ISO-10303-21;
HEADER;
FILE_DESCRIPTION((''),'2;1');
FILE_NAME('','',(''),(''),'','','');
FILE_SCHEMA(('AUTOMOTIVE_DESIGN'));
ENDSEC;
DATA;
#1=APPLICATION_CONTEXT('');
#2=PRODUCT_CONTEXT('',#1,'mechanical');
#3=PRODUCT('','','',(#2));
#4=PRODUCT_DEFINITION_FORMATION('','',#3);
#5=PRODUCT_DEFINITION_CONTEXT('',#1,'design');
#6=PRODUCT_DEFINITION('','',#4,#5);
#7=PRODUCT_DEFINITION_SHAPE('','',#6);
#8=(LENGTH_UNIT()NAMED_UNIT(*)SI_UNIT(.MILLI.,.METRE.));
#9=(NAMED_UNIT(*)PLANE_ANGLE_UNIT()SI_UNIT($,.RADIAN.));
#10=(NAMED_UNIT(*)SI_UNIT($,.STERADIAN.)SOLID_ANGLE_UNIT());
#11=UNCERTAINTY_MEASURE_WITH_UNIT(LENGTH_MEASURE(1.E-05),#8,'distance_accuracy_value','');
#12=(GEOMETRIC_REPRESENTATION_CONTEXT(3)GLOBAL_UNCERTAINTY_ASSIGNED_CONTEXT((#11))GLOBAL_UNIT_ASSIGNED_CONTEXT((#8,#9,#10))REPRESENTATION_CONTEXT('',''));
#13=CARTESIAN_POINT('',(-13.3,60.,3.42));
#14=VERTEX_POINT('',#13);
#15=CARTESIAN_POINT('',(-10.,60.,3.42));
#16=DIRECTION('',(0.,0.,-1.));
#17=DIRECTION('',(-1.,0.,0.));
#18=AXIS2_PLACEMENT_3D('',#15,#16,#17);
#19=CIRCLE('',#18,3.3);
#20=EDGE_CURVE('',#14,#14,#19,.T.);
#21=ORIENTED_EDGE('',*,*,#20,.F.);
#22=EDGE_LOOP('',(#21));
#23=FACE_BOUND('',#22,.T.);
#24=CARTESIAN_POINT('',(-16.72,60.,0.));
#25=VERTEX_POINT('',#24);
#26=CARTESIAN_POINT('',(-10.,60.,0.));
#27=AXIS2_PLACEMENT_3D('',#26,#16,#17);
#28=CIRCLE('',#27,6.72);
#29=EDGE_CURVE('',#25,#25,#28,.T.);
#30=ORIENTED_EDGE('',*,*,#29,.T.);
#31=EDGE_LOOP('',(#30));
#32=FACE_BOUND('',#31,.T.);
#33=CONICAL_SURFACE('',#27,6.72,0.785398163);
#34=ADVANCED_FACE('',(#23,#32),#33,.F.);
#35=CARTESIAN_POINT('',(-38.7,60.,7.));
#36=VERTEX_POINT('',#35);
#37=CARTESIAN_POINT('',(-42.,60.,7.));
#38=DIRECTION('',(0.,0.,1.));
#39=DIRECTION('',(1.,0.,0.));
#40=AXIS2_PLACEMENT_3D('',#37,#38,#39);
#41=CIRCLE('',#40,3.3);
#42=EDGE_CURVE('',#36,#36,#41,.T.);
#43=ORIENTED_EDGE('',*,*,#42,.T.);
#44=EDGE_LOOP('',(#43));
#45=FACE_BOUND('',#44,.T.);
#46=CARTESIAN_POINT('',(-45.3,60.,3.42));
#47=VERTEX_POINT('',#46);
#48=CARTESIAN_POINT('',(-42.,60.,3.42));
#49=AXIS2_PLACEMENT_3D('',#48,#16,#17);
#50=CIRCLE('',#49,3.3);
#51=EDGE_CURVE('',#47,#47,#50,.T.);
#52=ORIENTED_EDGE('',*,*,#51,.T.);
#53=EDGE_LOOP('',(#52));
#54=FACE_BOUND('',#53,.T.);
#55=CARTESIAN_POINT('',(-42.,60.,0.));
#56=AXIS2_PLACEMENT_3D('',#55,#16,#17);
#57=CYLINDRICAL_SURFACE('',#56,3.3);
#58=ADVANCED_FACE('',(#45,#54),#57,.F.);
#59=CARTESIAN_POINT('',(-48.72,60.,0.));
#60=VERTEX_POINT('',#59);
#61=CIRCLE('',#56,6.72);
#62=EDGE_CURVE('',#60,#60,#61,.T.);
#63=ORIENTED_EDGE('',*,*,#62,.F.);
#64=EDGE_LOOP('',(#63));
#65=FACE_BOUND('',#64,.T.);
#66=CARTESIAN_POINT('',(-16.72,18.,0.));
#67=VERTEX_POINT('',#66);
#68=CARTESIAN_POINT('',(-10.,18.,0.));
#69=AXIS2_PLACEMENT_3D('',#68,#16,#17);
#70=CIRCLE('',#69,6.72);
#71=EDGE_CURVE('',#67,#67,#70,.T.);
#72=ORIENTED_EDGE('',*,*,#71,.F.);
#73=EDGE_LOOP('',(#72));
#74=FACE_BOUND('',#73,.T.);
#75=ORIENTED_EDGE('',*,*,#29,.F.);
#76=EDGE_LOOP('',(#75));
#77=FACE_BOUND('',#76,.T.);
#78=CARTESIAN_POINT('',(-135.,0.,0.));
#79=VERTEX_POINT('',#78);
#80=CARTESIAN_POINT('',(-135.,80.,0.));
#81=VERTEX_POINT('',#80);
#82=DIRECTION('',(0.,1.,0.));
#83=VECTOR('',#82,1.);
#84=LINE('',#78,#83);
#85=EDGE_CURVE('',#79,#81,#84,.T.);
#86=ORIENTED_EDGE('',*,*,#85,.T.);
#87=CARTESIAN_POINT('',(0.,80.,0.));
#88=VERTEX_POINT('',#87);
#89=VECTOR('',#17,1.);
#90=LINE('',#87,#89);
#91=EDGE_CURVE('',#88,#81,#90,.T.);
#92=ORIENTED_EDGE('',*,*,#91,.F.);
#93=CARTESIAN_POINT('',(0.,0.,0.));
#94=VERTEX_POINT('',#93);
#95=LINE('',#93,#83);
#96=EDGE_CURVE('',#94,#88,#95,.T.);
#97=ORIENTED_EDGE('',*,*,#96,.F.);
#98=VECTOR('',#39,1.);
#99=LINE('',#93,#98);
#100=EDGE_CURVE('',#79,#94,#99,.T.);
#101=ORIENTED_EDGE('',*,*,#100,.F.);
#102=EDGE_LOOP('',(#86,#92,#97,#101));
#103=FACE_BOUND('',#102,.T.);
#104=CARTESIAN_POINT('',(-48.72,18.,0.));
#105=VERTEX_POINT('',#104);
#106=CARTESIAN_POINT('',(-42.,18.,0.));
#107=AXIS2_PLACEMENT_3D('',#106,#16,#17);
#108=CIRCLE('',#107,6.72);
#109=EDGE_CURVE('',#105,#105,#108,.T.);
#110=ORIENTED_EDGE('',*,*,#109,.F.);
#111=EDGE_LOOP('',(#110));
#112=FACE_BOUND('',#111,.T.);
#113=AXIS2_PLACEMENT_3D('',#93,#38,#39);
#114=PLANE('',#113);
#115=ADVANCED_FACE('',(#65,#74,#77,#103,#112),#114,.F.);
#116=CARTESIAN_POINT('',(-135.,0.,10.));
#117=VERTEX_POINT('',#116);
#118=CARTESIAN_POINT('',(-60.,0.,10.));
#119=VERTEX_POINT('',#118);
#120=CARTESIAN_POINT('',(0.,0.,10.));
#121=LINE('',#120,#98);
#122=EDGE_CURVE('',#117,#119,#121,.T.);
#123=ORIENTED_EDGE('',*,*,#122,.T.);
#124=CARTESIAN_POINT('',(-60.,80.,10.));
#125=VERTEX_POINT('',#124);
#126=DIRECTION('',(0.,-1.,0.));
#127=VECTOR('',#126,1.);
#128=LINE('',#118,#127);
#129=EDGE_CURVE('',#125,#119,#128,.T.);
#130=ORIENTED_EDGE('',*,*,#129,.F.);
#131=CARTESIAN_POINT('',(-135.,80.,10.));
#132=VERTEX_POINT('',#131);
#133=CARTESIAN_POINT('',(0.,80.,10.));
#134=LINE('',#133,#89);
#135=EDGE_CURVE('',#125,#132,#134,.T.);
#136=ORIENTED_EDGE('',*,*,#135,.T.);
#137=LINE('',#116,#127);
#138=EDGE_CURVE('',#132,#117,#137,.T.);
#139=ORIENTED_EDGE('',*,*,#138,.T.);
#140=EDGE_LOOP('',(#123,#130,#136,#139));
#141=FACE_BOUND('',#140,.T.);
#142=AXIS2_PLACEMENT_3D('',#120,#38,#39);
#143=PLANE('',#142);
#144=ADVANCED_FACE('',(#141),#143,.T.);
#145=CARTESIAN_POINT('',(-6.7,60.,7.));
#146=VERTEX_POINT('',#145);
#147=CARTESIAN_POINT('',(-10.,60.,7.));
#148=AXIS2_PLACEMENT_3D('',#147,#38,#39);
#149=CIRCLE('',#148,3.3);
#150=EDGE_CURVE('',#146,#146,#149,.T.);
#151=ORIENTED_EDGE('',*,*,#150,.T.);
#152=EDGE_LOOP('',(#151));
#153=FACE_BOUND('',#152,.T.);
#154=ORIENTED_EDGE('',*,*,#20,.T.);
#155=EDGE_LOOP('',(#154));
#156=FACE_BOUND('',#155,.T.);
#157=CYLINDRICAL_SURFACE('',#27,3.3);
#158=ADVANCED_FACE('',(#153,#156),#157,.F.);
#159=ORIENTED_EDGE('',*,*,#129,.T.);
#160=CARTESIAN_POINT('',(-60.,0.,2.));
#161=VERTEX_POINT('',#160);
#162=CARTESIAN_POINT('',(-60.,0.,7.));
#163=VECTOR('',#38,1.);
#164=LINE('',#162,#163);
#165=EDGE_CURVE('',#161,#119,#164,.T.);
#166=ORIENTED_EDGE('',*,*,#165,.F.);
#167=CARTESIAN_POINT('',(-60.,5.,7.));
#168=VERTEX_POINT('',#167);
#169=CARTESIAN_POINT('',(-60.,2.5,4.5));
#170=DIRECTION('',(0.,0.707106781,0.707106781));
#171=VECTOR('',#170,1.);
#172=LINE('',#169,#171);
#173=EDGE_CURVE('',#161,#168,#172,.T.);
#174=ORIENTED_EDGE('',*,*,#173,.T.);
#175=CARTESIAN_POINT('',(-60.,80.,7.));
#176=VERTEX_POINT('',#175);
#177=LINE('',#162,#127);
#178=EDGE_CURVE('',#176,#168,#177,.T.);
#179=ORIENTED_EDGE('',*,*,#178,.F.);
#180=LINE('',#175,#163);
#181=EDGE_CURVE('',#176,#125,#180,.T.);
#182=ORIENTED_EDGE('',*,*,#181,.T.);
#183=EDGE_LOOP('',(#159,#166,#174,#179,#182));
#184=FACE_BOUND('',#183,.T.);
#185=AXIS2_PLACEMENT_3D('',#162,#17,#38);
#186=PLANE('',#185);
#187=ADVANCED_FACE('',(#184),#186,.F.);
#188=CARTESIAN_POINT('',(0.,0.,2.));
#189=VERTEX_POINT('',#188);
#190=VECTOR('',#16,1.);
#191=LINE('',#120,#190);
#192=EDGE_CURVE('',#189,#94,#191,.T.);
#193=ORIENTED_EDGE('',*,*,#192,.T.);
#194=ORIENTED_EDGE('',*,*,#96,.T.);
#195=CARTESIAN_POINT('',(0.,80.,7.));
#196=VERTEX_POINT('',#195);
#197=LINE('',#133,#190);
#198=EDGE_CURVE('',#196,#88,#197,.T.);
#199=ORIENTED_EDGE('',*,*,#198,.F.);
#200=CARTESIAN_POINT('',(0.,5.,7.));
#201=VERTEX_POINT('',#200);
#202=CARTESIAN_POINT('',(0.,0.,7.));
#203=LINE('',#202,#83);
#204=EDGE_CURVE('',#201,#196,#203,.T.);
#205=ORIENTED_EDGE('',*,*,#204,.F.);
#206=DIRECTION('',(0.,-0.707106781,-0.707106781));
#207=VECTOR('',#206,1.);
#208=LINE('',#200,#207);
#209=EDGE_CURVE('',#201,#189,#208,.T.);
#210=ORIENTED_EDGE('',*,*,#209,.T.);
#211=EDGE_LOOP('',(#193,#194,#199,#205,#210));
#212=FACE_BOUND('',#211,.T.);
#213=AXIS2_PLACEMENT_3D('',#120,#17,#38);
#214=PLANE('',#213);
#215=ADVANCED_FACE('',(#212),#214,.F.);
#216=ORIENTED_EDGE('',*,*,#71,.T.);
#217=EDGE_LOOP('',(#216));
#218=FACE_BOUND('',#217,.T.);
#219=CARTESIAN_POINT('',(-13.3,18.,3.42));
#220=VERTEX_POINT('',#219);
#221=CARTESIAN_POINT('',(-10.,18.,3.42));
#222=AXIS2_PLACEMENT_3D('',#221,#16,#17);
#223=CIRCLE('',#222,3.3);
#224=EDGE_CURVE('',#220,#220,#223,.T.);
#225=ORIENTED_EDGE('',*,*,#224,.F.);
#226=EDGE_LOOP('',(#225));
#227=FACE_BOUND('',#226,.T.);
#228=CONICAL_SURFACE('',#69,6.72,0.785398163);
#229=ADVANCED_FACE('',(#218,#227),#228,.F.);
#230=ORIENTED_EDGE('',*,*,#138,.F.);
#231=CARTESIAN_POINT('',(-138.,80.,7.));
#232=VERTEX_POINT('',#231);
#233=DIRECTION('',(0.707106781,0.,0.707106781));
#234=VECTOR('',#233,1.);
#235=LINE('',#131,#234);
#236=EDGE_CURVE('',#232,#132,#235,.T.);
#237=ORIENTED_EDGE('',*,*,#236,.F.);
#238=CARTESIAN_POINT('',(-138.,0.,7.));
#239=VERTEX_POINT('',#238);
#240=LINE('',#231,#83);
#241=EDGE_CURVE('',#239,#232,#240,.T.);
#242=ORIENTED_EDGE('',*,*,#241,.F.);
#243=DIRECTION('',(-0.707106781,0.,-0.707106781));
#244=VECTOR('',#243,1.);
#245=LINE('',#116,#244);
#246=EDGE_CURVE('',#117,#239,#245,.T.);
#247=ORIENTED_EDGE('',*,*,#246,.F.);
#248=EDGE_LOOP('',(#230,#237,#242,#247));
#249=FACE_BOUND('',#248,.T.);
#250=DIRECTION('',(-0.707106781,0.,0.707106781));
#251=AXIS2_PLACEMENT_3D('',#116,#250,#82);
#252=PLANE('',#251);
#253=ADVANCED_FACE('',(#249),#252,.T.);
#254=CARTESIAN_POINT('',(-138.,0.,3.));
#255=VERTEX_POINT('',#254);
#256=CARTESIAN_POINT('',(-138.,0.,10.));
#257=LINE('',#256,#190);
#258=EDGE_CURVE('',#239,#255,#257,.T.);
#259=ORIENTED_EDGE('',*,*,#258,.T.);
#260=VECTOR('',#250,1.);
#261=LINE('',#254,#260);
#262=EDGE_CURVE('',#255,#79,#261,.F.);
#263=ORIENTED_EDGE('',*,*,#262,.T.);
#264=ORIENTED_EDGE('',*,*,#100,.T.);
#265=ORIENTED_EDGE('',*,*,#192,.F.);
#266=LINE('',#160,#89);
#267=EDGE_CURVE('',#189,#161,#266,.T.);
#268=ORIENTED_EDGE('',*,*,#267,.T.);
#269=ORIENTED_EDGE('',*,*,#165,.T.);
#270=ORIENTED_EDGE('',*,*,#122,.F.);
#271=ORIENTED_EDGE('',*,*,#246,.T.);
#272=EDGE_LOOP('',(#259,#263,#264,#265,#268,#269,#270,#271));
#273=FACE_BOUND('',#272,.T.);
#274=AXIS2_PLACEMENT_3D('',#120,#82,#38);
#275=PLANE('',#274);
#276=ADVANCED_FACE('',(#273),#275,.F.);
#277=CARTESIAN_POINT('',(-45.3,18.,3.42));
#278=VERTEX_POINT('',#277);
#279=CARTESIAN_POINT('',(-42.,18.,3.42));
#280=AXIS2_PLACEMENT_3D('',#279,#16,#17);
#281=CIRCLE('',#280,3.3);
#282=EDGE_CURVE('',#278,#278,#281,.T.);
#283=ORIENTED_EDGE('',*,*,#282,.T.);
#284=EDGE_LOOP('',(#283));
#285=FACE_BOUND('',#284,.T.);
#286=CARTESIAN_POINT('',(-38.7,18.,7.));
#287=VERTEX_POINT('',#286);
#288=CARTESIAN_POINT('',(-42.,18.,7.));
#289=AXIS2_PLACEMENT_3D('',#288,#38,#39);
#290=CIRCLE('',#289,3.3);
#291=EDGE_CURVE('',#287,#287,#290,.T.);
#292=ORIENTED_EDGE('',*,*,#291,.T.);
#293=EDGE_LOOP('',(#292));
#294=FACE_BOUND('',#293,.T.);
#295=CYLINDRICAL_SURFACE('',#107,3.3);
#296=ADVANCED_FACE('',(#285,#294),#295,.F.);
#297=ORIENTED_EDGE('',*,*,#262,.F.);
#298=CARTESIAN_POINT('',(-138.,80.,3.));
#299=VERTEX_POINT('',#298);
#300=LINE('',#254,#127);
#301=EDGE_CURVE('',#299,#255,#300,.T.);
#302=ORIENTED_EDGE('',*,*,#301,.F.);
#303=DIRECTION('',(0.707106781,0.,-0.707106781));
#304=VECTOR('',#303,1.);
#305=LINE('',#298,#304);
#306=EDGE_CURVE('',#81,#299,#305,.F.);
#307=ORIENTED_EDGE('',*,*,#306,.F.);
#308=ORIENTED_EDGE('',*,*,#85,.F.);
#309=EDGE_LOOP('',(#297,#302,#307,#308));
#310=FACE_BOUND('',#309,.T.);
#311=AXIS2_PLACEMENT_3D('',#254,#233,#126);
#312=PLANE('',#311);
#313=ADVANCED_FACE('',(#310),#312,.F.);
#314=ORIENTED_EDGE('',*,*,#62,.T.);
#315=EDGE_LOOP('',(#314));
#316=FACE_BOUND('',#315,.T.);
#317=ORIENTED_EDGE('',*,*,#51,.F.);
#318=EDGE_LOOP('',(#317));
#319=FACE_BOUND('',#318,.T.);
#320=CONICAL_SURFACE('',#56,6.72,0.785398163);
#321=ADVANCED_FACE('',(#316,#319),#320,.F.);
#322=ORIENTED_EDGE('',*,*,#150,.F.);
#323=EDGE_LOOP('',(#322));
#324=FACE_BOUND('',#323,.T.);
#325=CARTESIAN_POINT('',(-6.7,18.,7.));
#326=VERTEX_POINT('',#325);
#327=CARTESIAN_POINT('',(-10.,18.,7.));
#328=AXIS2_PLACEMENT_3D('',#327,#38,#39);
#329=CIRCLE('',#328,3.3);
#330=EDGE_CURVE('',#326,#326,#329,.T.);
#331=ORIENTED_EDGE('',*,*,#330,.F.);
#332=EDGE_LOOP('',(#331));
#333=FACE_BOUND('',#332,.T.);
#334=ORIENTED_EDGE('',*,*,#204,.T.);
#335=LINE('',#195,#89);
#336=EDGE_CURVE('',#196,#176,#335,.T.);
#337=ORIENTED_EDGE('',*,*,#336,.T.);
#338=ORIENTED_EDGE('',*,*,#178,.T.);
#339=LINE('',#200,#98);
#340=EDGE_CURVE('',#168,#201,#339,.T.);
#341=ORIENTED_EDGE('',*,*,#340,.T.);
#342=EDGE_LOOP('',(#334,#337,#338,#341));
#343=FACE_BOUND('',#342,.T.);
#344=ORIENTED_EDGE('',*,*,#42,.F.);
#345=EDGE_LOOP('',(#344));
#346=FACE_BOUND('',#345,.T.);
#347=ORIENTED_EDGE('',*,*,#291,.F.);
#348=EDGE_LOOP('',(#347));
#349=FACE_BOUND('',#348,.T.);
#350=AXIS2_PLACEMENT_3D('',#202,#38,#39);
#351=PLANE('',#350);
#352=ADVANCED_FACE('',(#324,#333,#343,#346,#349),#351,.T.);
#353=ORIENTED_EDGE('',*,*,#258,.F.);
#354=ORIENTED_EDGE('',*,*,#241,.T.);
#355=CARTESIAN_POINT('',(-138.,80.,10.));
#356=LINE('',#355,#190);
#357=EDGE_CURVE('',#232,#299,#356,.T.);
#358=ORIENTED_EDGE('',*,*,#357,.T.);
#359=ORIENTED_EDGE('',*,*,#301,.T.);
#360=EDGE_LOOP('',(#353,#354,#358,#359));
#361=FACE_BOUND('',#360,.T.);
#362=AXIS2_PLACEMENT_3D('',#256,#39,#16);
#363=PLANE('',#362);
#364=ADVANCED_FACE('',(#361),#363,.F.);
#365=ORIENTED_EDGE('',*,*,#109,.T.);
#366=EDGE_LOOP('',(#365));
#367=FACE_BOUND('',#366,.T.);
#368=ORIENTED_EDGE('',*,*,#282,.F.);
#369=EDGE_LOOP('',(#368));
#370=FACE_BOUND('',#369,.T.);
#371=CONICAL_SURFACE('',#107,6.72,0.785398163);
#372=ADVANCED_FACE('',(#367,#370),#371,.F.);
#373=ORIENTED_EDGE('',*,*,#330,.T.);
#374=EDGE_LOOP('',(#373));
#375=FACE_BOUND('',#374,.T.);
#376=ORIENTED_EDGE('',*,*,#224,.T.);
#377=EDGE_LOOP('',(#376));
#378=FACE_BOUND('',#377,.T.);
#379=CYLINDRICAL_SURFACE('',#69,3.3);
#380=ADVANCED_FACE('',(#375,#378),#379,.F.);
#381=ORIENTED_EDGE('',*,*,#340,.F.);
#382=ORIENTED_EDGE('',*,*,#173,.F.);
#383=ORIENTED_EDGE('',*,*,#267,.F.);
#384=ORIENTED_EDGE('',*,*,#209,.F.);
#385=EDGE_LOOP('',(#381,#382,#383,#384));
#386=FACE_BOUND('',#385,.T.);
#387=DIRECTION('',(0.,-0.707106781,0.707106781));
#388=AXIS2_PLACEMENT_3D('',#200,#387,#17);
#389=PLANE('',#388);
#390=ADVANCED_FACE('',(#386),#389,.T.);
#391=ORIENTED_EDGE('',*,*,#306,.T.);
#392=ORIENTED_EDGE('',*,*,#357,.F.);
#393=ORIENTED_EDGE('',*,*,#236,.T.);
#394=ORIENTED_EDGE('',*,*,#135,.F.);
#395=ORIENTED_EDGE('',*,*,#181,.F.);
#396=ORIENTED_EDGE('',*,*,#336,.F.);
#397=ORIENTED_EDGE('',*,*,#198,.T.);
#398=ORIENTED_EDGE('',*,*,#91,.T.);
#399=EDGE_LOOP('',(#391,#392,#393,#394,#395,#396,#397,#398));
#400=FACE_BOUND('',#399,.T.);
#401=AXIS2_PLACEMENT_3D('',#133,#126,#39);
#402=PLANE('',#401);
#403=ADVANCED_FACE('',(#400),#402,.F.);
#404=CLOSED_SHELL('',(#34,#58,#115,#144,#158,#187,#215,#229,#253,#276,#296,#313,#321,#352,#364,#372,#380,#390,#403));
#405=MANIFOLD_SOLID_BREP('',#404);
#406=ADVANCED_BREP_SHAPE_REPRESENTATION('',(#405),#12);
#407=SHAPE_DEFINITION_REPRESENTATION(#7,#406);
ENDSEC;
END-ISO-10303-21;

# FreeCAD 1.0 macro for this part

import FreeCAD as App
import Part
import Sketcher

V = App.Vector


def edges_at(feature, points):
    """Names of the edges that pass closest to the given points."""
    edges = feature.Shape.Edges
    near = lambda p: min(range(len(edges)), key=lambda i: edges[i].distToShape(Part.Vertex(*p))[0])
    return sorted({f"Edge{near(p) + 1}" for p in points})


def add_polygon(sketch, points):
    """Adds a closed chain of lines whose ends are joined by coincident constraints."""
    first, n = sketch.GeometryCount, len(points)
    for a, b in zip(points, points[1:] + points[:1]):
        sketch.addGeometry(Part.LineSegment(App.Vector(*a, 0), App.Vector(*b, 0)), False)
    for i in range(n):
        sketch.addConstraint(Sketcher.Constraint("Coincident", first + i, 2, first + (i + 1) % n, 1))

doc = App.newDocument("Part")
body = doc.addObject("PartDesign::Body", "Body")

sketch1 = doc.addObject("Sketcher::SketchObject", "Sketch")
body.addObject(sketch1)
sketch1.AttachmentSupport = (doc.XY_Plane, [""])
sketch1.MapMode = "FlatFace"
add_polygon(sketch1, [(-138, 80), (-138, 0), (0, 0), (0, 80)])
sketch1.addConstraint([
    Sketcher.Constraint("Vertical", 0),
    Sketcher.Constraint("Horizontal", 1),
    Sketcher.Constraint("Vertical", 2),
    Sketcher.Constraint("Horizontal", 3),
    Sketcher.Constraint("Coincident", 1, 2, -1, 1),
    Sketcher.Constraint("DistanceX", 1, 1, 1, 2, 138.0),
    Sketcher.Constraint("DistanceY", 0, 2, 0, 1, 80.0),
])
pad1 = doc.addObject("PartDesign::Pad", "Pad")
body.addObject(pad1)
pad1.Profile = sketch1
pad1.Length = 10

sketch2 = doc.addObject("Sketcher::SketchObject", "Sketch001")
body.addObject(sketch2)
sketch2.AttachmentSupport = (doc.XY_Plane, [""])
sketch2.MapMode = "FlatFace"
sketch2.AttachmentOffset = App.Placement(V(0, 0, 10), App.Rotation())
add_polygon(sketch2, [(-60, 80), (-60, 0), (0, 0), (0, 80)])
sketch2.addConstraint([
    Sketcher.Constraint("Vertical", 0),
    Sketcher.Constraint("Horizontal", 1),
    Sketcher.Constraint("Vertical", 2),
    Sketcher.Constraint("Horizontal", 3),
    Sketcher.Constraint("Coincident", 1, 2, -1, 1),
    Sketcher.Constraint("DistanceX", 1, 1, 1, 2, 60.0),
    Sketcher.Constraint("DistanceY", 0, 2, 0, 1, 80.0),
])
pocket1 = doc.addObject("PartDesign::Pocket", "Pocket")
body.addObject(pocket1)
pocket1.Profile = sketch2
pocket1.Length = 3

sketch3 = doc.addObject("Sketcher::SketchObject", "Sketch002")
body.addObject(sketch3)
sketch3.AttachmentSupport = (doc.XY_Plane, [""])
sketch3.MapMode = "FlatFace"
sketch3.addGeometry([
    Part.Circle(V(-10, 60, 0), V(0, 0, 1), 3.3),
    Part.Circle(V(-42, 60, 0), V(0, 0, 1), 3.3),
    Part.Circle(V(-42, 18, 0), V(0, 0, 1), 3.3),
    Part.Circle(V(-10, 18, 0), V(0, 0, 1), 3.3),
], False)
sketch3.addConstraint([
    Sketcher.Constraint("Equal", 0, 1),
    Sketcher.Constraint("Equal", 1, 2),
    Sketcher.Constraint("Equal", 2, 3),
    Sketcher.Constraint("Horizontal", 0, 3, 1, 3),
    Sketcher.Constraint("Horizontal", 2, 3, 3, 3),
    Sketcher.Constraint("Vertical", 1, 3, 2, 3),
    Sketcher.Constraint("Vertical", 0, 3, 3, 3),
    Sketcher.Constraint("Diameter", 0, 6.6),
    Sketcher.Constraint("DistanceX", 0, 3, -1, 1, 10.0),
    Sketcher.Constraint("DistanceY", -1, 1, 0, 3, 60.0),
    Sketcher.Constraint("DistanceX", 1, 3, -1, 1, 42.0),
    Sketcher.Constraint("DistanceY", -1, 1, 2, 3, 18.0),
])
doc.recompute()
hole = doc.addObject("PartDesign::Hole", "Hole")
body.addObject(hole)
hole.Profile = sketch3
hole.ThreadType = "None"
hole.Diameter = 6.6
hole.DepthType = "ThroughAll"
hole.HoleCutType = "Countersink"
hole.HoleCutDiameter = 13.44
hole.HoleCutCountersinkAngle = 90
hole.Reversed = True
doc.recompute()

chamfer = doc.addObject("PartDesign::Chamfer", "Chamfer")
body.addObject(chamfer)
chamfer.Base = (hole, edges_at(hole, [(-30, 0, 7)]))
chamfer.Size = 5
doc.recompute()

chamfer2 = doc.addObject("PartDesign::Chamfer", "Chamfer001")
body.addObject(chamfer2)
chamfer2.Base = (chamfer, edges_at(chamfer, [(-138, 40, 10), (-138, 40, 0)]))
chamfer2.Size = 3

doc.recompute()
